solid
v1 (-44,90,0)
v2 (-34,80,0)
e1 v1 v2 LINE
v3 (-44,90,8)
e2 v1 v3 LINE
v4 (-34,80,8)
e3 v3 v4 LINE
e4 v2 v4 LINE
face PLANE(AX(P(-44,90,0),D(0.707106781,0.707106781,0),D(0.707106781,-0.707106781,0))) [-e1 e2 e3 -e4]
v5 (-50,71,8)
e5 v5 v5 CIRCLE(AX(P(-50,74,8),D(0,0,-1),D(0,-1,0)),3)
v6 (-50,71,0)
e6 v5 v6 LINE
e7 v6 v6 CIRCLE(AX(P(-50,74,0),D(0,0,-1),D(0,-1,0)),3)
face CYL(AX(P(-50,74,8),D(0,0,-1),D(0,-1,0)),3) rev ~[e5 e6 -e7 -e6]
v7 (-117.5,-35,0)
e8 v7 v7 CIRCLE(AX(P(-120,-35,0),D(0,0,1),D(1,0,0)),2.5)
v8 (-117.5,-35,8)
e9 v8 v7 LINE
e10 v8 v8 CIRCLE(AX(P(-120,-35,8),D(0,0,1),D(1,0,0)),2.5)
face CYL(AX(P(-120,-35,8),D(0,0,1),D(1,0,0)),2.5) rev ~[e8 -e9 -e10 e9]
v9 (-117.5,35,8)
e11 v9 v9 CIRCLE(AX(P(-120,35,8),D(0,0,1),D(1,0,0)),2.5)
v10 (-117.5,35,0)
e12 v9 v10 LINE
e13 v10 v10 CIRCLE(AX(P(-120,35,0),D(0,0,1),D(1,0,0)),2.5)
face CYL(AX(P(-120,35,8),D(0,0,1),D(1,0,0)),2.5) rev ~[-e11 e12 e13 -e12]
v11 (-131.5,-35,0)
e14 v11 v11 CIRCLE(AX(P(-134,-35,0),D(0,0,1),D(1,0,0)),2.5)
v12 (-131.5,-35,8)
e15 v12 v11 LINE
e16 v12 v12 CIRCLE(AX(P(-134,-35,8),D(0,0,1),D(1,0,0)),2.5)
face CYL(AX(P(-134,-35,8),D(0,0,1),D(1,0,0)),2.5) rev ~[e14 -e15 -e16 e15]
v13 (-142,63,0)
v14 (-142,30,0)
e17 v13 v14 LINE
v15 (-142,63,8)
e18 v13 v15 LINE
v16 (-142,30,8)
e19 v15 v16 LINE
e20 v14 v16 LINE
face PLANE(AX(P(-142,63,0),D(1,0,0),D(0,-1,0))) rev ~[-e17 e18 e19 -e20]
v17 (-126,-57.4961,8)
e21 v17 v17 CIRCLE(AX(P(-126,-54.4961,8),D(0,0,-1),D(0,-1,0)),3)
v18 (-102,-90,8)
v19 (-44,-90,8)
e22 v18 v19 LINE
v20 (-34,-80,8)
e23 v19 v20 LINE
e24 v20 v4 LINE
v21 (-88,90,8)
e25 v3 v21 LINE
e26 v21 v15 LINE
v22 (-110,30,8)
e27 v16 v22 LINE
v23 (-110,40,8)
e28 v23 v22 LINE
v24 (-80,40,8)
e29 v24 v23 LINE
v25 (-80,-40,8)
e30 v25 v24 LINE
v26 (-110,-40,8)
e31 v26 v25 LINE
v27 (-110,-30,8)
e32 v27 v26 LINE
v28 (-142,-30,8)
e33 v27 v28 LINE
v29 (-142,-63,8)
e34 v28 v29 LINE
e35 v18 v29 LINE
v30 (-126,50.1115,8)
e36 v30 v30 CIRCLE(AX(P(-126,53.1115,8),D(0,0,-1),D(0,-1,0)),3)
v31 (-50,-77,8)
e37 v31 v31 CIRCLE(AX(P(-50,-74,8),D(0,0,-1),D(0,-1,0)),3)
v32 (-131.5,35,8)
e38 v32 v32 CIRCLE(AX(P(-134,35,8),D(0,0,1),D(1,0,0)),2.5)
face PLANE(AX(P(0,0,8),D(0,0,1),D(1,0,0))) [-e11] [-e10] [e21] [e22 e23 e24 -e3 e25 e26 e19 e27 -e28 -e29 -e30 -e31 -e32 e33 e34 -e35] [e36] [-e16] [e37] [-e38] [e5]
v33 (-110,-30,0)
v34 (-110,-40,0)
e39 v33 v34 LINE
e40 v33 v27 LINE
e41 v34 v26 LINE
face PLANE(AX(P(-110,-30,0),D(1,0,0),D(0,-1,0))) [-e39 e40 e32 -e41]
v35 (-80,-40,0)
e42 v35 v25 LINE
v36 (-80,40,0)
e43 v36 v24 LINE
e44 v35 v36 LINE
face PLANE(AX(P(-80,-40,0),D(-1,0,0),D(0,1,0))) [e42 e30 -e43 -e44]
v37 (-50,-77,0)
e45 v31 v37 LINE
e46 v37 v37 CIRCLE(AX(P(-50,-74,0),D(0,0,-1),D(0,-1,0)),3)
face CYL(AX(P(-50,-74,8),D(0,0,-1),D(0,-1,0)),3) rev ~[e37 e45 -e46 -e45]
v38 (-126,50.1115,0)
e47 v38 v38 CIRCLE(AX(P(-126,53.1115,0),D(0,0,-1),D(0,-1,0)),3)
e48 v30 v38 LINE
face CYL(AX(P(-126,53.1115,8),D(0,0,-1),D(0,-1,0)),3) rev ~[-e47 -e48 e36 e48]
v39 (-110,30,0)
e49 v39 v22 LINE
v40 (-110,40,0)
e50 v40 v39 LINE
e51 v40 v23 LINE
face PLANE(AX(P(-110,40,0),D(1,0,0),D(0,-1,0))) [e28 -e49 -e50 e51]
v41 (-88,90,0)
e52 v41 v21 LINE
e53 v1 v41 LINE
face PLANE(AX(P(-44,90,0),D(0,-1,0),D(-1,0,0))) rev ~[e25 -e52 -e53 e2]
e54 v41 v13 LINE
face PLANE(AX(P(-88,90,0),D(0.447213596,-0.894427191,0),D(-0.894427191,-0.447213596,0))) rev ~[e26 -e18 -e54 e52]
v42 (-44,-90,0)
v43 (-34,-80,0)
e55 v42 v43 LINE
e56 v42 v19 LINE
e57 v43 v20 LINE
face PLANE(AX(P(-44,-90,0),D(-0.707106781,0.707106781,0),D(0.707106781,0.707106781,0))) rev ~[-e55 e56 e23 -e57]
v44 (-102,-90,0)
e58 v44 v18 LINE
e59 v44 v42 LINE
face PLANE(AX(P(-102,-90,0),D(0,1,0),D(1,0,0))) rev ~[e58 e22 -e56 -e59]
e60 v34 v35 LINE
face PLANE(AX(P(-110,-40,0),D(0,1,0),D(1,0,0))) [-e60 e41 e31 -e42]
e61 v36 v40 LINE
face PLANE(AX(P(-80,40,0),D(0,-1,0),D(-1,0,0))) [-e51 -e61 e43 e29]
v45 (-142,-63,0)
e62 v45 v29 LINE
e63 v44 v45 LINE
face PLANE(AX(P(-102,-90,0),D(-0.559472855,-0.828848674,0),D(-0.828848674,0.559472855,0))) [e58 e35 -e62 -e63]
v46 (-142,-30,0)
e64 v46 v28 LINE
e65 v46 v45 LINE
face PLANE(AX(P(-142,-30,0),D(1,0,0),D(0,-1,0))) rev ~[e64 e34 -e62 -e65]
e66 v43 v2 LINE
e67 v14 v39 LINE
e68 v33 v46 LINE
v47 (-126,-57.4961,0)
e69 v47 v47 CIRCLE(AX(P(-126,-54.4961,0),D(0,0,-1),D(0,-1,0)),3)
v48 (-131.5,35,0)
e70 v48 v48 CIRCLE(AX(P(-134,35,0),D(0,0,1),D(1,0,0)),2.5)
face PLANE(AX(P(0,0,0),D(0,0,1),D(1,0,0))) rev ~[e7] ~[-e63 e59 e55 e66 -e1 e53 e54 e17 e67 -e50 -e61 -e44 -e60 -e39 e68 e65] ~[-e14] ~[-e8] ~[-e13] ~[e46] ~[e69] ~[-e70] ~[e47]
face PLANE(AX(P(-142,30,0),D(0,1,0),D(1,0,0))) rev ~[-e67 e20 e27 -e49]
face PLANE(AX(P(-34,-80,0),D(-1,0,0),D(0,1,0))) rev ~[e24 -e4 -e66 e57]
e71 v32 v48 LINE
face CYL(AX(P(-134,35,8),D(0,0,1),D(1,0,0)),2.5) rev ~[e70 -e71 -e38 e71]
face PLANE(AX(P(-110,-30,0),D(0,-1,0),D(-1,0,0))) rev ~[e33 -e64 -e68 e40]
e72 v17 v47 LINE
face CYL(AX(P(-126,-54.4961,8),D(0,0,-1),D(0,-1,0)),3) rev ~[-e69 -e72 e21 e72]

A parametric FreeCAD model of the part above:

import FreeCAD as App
import Part
import Sketcher

doc = App.newDocument("Part")
params = doc.addObject("Spreadsheet::Sheet", "Params")
for row, (alias, value) in enumerate([
    ("sketch1_width", "32 mm"),
    ("sketch1_width2", "30 mm"),
    ("sketch1_height", "10 mm"),
    ("sketch1_height2", "80 mm"),
    ("pad1_length", "8 mm"),
    ("sketch2_diameter", "5 mm"),
    ("pocket1_length", "8 mm"),
    ("sketch3_diameter", "6 mm"),
    ("hole_diameter", "6 mm"),
], start=1):
    params.set(f"A{row}", alias)
    params.set(f"B{row}", "=" + value)
    params.setAlias(f"B{row}", alias)

body = doc.addObject("PartDesign::Body", "Body")

sketch1 = body.newObject("Sketcher::SketchObject", "Sketch")
sketch1.AttachmentSupport = (doc.getObject("XY_Plane"), [""])
sketch1.MapMode = "FlatFace"
sketch1.addGeometry(Part.LineSegment(App.Vector(-34, 80, 0), App.Vector(-44, 90, 0)), False)
sketch1.addGeometry(Part.LineSegment(App.Vector(-44, 90, 0), App.Vector(-88, 90, 0)), False)
sketch1.addGeometry(Part.LineSegment(App.Vector(-88, 90, 0), App.Vector(-142, 63, 0)), False)
sketch1.addGeometry(Part.LineSegment(App.Vector(-142, 63, 0), App.Vector(-142, 30, 0)), False)
sketch1.addGeometry(Part.LineSegment(App.Vector(-142, 30, 0), App.Vector(-110, 30, 0)), False)
sketch1.addGeometry(Part.LineSegment(App.Vector(-110, 30, 0), App.Vector(-110, 40, 0)), False)
sketch1.addGeometry(Part.LineSegment(App.Vector(-110, 40, 0), App.Vector(-80, 40, 0)), False)
sketch1.addGeometry(Part.LineSegment(App.Vector(-80, 40, 0), App.Vector(-80, -40, 0)), False)
sketch1.addGeometry(Part.LineSegment(App.Vector(-80, -40, 0), App.Vector(-110, -40, 0)), False)
sketch1.addGeometry(Part.LineSegment(App.Vector(-110, -40, 0), App.Vector(-110, -30, 0)), False)
sketch1.addGeometry(Part.LineSegment(App.Vector(-110, -30, 0), App.Vector(-142, -30, 0)), False)
sketch1.addGeometry(Part.LineSegment(App.Vector(-142, -30, 0), App.Vector(-142, -63, 0)), False)
sketch1.addGeometry(Part.LineSegment(App.Vector(-142, -63, 0), App.Vector(-102, -90, 0)), False)
sketch1.addGeometry(Part.LineSegment(App.Vector(-102, -90, 0), App.Vector(-44, -90, 0)), False)
sketch1.addGeometry(Part.LineSegment(App.Vector(-44, -90, 0), App.Vector(-34, -80, 0)), False)
sketch1.addGeometry(Part.LineSegment(App.Vector(-34, -80, 0), App.Vector(-34, 80, 0)), False)
sketch1.addConstraint(Sketcher.Constraint("Coincident", 0, 2, 1, 1))
sketch1.addConstraint(Sketcher.Constraint("Coincident", 1, 2, 2, 1))
sketch1.addConstraint(Sketcher.Constraint("Coincident", 2, 2, 3, 1))
sketch1.addConstraint(Sketcher.Constraint("Coincident", 3, 2, 4, 1))
sketch1.addConstraint(Sketcher.Constraint("Coincident", 4, 2, 5, 1))
sketch1.addConstraint(Sketcher.Constraint("Coincident", 5, 2, 6, 1))
sketch1.addConstraint(Sketcher.Constraint("Coincident", 6, 2, 7, 1))
sketch1.addConstraint(Sketcher.Constraint("Coincident", 7, 2, 8, 1))
sketch1.addConstraint(Sketcher.Constraint("Coincident", 8, 2, 9, 1))
sketch1.addConstraint(Sketcher.Constraint("Coincident", 9, 2, 10, 1))
sketch1.addConstraint(Sketcher.Constraint("Coincident", 10, 2, 11, 1))
sketch1.addConstraint(Sketcher.Constraint("Coincident", 11, 2, 12, 1))
sketch1.addConstraint(Sketcher.Constraint("Coincident", 12, 2, 13, 1))
sketch1.addConstraint(Sketcher.Constraint("Coincident", 13, 2, 14, 1))
sketch1.addConstraint(Sketcher.Constraint("Coincident", 14, 2, 15, 1))
sketch1.addConstraint(Sketcher.Constraint("Coincident", 15, 2, 0, 1))
sketch1.addConstraint(Sketcher.Constraint("Horizontal", 1))
sketch1.addConstraint(Sketcher.Constraint("Vertical", 3))
sketch1.addConstraint(Sketcher.Constraint("Horizontal", 4))
sketch1.addConstraint(Sketcher.Constraint("Vertical", 5))
sketch1.addConstraint(Sketcher.Constraint("Horizontal", 6))
sketch1.addConstraint(Sketcher.Constraint("Vertical", 7))
sketch1.addConstraint(Sketcher.Constraint("Horizontal", 8))
sketch1.addConstraint(Sketcher.Constraint("Vertical", 9))
sketch1.addConstraint(Sketcher.Constraint("Horizontal", 10))
sketch1.addConstraint(Sketcher.Constraint("Vertical", 11))
sketch1.addConstraint(Sketcher.Constraint("Horizontal", 13))
sketch1.addConstraint(Sketcher.Constraint("Vertical", 15))
sketch1.addConstraint(Sketcher.Constraint("Symmetric", 5, 2, 8, 2, -1))
sketch1.addConstraint(Sketcher.Constraint("Symmetric", 3, 2, 10, 2, -1))
sketch1.addConstraint(Sketcher.Constraint("Symmetric", 0, 2, 13, 2, -1))
sketch1.addConstraint(Sketcher.Constraint("Perpendicular", 0, 14))
sketch1.addConstraint(Sketcher.Constraint("Equal", 3, 11))
sketch1.addConstraint(Sketcher.Constraint("Equal", 0, 14))
sketch1.addConstraint(Sketcher.Constraint("DistanceX", 4, 1, 4, 2, 32.0))
sketch1.addConstraint(Sketcher.Constraint("DistanceX", 6, 1, 6, 2, 30.0))
sketch1.addConstraint(Sketcher.Constraint("DistanceY", 5, 1, 5, 2, 10.0))
sketch1.addConstraint(Sketcher.Constraint("DistanceY", 7, 2, 7, 1, 80.0))
sketch1.addConstraint(Sketcher.Constraint("DistanceY", -1, 1, 0, 2, 90.0))
sketch1.addConstraint(Sketcher.Constraint("DistanceX", 6, 2, -1, 1, 80.0))
sketch1.addConstraint(Sketcher.Constraint("DistanceY", 14, 2, -1, 1, 80.0))
sketch1.addConstraint(Sketcher.Constraint("DistanceX", 2, 2, 1, 2, 54.0))
sketch1.addConstraint(Sketcher.Constraint("DistanceY", 2, 2, 1, 2, 27.0))
sketch1.addConstraint(Sketcher.Constraint("DistanceX", 11, 2, 12, 2, 40.0))
sketch1.addConstraint(Sketcher.Constraint("DistanceX", 7, 2, 14, 2, 46.0))
sketch1.setExpression("Constraints[34]", "Params.sketch1_width")
sketch1.setExpression("Constraints[35]", "Params.sketch1_width2")
sketch1.setExpression("Constraints[36]", "Params.sketch1_height")
sketch1.setExpression("Constraints[37]", "Params.sketch1_height2")
pad1 = body.newObject("PartDesign::Pad", "Pad")
pad1.Profile = sketch1
pad1.setExpression("Length", "Params.pad1_length")

sketch2 = body.newObject("Sketcher::SketchObject", "Sketch001")
sketch2.AttachmentSupport = (doc.getObject("XY_Plane"), [""])
sketch2.MapMode = "FlatFace"
sketch2.AttachmentOffset = App.Placement(App.Vector(0, 0, 8), App.Rotation())
sketch2.addGeometry(Part.Circle(App.Vector(-120, -35, 0), App.Vector(0, 0, 1), 2.5), False)
sketch2.addGeometry(Part.Circle(App.Vector(-134, -35, 0), App.Vector(0, 0, 1), 2.5), False)
sketch2.addGeometry(Part.Circle(App.Vector(-120, 35, 0), App.Vector(0, 0, 1), 2.5), False)
sketch2.addGeometry(Part.Circle(App.Vector(-134, 35, 0), App.Vector(0, 0, 1), 2.5), False)
sketch2.addConstraint(Sketcher.Constraint("Equal", 0, 1))
sketch2.addConstraint(Sketcher.Constraint("Equal", 1, 2))
sketch2.addConstraint(Sketcher.Constraint("Equal", 2, 3))
sketch2.addConstraint(Sketcher.Constraint("Symmetric", 0, 3, 2, 3, -1))
sketch2.addConstraint(Sketcher.Constraint("Symmetric", 1, 3, 3, 3, -1))
sketch2.addConstraint(Sketcher.Constraint("Horizontal", 0, 3, 1, 3))
sketch2.addConstraint(Sketcher.Constraint("Diameter", 0, 5.0))
sketch2.addConstraint(Sketcher.Constraint("DistanceX", 1, 3, 0, 3, 14.0))
sketch2.addConstraint(Sketcher.Constraint("DistanceX", 0, 3, -1, 1, 120.0))
sketch2.addConstraint(Sketcher.Constraint("DistanceY", 0, 3, -1, 1, 35.0))
sketch2.setExpression("Constraints[6]", "Params.sketch2_diameter")
pocket1 = body.newObject("PartDesign::Pocket", "Pocket")
pocket1.Profile = sketch2
pocket1.setExpression("Length", "Params.pocket1_length")

sketch3 = body.newObject("Sketcher::SketchObject", "Sketch002")
sketch3.AttachmentSupport = (doc.getObject("XY_Plane"), [""])
sketch3.MapMode = "FlatFace"
sketch3.AttachmentOffset = App.Placement(App.Vector(0, 0, 8), App.Rotation())
sketch3.addGeometry(Part.Circle(App.Vector(-126, 53.1, 0), App.Vector(0, 0, 1), 3), False)
sketch3.addGeometry(Part.Circle(App.Vector(-50, 74, 0), App.Vector(0, 0, 1), 3), False)
sketch3.addGeometry(Part.Circle(App.Vector(-50, -74, 0), App.Vector(0, 0, 1), 3), False)
sketch3.addGeometry(Part.Circle(App.Vector(-126, -54.5, 0), App.Vector(0, 0, 1), 3), False)
sketch3.addConstraint(Sketcher.Constraint("Equal", 0, 1))
sketch3.addConstraint(Sketcher.Constraint("Equal", 1, 2))
sketch3.addConstraint(Sketcher.Constraint("Equal", 2, 3))
sketch3.addConstraint(Sketcher.Constraint("Symmetric", 1, 3, 2, 3, -1))
sketch3.addConstraint(Sketcher.Constraint("Vertical", 0, 3, 3, 3))
sketch3.addConstraint(Sketcher.Constraint("Diameter", 0, 6.0))
sketch3.addConstraint(Sketcher.Constraint("DistanceX", 0, 3, -1, 1, 126.0))
sketch3.addConstraint(Sketcher.Constraint("DistanceX", 1, 3, -1, 1, 50.0))
sketch3.addConstraint(Sketcher.Constraint("DistanceY", -1, 1, 1, 3, 74.0))
sketch3.addConstraint(Sketcher.Constraint("DistanceY", 3, 3, -1, 1, 54.496))
sketch3.addConstraint(Sketcher.Constraint("DistanceY", -1, 1, 0, 3, 53.1115))
sketch3.setExpression("Constraints[5]", "Params.sketch3_diameter")
doc.recompute()
hole = body.newObject("PartDesign::Hole", "Hole")
hole.Profile = sketch3
hole.ThreadType = "None"
hole.setExpression("Diameter", "Params.hole_diameter")
hole.DepthType = "ThroughAll"

doc.recompute()
